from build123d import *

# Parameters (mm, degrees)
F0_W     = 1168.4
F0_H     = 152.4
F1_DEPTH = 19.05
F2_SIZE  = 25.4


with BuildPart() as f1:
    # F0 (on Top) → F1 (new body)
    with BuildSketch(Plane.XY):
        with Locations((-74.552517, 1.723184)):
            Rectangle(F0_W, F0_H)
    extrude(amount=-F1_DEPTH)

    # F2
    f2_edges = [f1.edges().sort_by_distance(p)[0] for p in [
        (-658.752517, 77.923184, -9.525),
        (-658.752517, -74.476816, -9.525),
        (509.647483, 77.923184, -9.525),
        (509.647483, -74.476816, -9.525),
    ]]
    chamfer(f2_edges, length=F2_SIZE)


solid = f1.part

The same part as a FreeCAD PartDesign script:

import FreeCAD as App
import Part
import Sketcher
from FreeCAD import Vector
Q = App.Units.Quantity


def edges_at(feature, points):
    """Names of the edges that pass closest to the given points."""
    edges = feature.Shape.Edges
    near = lambda p: min(range(len(edges)), key=lambda i: edges[i].distToShape(Part.Vertex(*p))[0])
    return sorted({f"Edge{near(p) + 1}" for p in points})


def add_polygon(sketch, points):
    """Adds a closed chain of lines whose ends are joined by coincident constraints."""
    first, n = sketch.GeometryCount, len(points)
    for a, b in zip(points, points[1:] + points[:1]):
        sketch.addGeometry(Part.LineSegment(App.Vector(*a, 0), App.Vector(*b, 0)), False)
    for i in range(n):
        sketch.addConstraint(Sketcher.Constraint("Coincident", first + i, 2, first + (i + 1) % n, 1))

doc = App.newDocument("Part")
body = doc.addObject("PartDesign::Body", "Body")

# Sketch on XY plane
sketch1 = doc.addObject("Sketcher::SketchObject", "Sketch")
body.addObject(sketch1)
sketch1.AttachmentSupport = (doc.XY_Plane, [""])
sketch1.MapMode = "FlatFace"
add_polygon(sketch1, [(-659, 78), (-659, -74), (510, -74), (510, 78)])  # lines 0-3
sketch1.addConstraint(Sketcher.Constraint("Vertical", 0))
sketch1.addConstraint(Sketcher.Constraint("Horizontal", 1))
sketch1.addConstraint(Sketcher.Constraint("Vertical", 2))
sketch1.addConstraint(Sketcher.Constraint("Horizontal", 3))
sketch1.addConstraint(Sketcher.Constraint("DistanceX", 1, 1, 1, 2, Q("46 in")))
sketch1.addConstraint(Sketcher.Constraint("DistanceY", 0, 2, 0, 1, Q("6 in")))
sketch1.addConstraint(Sketcher.Constraint("DistanceX", 0, 2, -1, 1, 658.752517))
sketch1.addConstraint(Sketcher.Constraint("DistanceY", 0, 2, -1, 1, 74.476816))
pad1 = doc.addObject("PartDesign::Pad", "Pad")
body.addObject(pad1)
pad1.Profile = sketch1
pad1.Length = Q("0.75 in")
pad1.Reversed = True
doc.recompute()

chamfer = doc.addObject("PartDesign::Chamfer", "Chamfer")
body.addObject(chamfer)
chamfer.Base = (pad1, edges_at(pad1, [
    (-658.753, 77.923, -9.525),
    (-658.753, -74.477, -9.525),
    (509.647, 77.923, -9.525),
    (509.647, -74.477, -9.525),
]))
chamfer.Size = Q("1 in")

doc.recompute()
